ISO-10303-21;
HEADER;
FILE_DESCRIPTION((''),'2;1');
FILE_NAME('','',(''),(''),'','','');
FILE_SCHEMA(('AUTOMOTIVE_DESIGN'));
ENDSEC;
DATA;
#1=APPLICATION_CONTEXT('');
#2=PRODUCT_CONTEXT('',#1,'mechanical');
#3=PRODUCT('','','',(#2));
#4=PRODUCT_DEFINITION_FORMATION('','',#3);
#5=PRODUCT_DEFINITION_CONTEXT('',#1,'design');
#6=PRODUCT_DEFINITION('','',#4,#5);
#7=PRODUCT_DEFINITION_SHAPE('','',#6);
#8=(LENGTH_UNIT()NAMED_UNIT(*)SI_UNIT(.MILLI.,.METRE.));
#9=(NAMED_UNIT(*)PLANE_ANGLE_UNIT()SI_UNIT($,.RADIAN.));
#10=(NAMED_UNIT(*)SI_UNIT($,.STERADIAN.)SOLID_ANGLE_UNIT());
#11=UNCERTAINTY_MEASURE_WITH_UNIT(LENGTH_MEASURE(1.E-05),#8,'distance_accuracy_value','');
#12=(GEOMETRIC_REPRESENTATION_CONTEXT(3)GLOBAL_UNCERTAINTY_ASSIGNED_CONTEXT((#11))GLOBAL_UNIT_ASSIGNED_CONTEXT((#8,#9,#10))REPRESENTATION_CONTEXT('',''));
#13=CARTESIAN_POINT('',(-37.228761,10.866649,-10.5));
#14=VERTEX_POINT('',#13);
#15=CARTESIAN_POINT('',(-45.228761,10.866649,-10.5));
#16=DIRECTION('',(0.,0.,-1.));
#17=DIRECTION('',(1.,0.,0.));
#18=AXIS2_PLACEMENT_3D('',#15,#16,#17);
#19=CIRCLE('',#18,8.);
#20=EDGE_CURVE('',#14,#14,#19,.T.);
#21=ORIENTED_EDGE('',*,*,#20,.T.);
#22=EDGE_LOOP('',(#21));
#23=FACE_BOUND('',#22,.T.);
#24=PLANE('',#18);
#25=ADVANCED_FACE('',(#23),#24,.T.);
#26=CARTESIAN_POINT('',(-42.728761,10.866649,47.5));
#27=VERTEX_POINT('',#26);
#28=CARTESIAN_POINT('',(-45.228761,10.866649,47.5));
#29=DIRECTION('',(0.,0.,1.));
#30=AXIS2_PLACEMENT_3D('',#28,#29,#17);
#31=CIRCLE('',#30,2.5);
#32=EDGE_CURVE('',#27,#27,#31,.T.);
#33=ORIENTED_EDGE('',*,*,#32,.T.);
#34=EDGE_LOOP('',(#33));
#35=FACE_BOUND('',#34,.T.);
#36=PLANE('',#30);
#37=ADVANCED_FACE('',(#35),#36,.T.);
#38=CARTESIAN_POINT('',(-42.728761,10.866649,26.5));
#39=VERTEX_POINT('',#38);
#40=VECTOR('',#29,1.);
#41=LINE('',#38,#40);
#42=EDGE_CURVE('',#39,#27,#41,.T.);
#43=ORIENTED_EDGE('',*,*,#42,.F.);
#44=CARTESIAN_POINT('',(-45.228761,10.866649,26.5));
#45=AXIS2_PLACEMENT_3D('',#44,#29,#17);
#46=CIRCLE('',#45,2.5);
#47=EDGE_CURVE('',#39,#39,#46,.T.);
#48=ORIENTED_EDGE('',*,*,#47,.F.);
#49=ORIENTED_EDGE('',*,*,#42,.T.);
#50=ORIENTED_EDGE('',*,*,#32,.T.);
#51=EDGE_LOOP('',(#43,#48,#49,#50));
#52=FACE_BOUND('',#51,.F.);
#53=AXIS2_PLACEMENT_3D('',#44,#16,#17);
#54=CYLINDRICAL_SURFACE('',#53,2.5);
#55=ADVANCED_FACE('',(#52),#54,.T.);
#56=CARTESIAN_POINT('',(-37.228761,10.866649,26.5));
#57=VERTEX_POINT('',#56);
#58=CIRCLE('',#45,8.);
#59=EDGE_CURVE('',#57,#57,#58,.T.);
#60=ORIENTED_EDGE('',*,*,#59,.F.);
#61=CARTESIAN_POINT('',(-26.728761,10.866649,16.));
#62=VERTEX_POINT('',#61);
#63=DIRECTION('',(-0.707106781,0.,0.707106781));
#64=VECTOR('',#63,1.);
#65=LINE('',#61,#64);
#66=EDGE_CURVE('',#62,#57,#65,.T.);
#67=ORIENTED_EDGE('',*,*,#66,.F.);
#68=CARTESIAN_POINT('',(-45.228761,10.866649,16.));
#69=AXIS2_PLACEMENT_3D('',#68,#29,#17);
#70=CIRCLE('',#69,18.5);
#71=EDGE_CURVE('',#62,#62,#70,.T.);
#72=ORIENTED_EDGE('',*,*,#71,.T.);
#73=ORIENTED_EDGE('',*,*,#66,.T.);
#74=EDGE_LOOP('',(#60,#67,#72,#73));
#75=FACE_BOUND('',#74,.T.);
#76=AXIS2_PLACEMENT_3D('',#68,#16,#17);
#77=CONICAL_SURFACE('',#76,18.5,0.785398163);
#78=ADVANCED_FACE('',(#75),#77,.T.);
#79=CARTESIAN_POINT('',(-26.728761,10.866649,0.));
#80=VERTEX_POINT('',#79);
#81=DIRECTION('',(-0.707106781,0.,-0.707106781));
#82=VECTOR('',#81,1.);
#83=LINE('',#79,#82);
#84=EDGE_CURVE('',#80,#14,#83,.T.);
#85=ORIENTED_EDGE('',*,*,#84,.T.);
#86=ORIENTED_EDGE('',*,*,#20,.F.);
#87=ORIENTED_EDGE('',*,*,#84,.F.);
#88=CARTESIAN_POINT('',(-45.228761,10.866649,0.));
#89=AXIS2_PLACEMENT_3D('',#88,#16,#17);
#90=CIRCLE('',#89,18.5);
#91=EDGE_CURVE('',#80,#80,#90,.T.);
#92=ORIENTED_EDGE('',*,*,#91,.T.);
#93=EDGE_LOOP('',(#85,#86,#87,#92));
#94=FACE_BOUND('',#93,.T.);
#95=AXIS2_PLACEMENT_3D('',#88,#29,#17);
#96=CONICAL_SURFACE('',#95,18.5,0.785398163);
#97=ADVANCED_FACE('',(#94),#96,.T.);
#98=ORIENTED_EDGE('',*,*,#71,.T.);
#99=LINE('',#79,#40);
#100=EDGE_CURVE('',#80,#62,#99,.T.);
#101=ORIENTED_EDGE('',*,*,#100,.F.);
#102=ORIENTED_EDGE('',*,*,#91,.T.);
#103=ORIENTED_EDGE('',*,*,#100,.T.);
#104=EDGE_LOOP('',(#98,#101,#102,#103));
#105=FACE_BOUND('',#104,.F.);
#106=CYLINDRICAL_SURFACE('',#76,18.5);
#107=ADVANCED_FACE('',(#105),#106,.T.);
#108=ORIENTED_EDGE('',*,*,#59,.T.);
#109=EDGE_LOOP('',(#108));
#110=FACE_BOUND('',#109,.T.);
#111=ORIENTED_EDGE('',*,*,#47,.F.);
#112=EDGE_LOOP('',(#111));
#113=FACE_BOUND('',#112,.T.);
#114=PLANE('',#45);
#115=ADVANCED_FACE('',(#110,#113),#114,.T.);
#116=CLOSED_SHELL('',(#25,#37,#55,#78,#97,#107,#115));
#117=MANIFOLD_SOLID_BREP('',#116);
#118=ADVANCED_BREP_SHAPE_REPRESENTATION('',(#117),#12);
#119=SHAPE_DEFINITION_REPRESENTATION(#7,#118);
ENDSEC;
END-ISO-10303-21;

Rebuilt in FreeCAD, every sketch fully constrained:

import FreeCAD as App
import Part
import Sketcher
from FreeCAD import Vector


def edges_at(feature, points):
    """Names of the edges that pass closest to the given points."""
    edges = feature.Shape.Edges
    near = lambda p: min(range(len(edges)), key=lambda i: edges[i].distToShape(Part.Vertex(*p))[0])
    return sorted({f"Edge{near(p) + 1}" for p in points})

doc = App.newDocument("Part")
body = doc.addObject("PartDesign::Body", "Body")

# Sketch on XY plane
sketch1 = body.newObject("Sketcher::SketchObject", "Sketch")
sketch1.AttachmentSupport = (doc.getObject("XY_Plane"), [""])
sketch1.MapMode = "FlatFace"
sketch1.addGeometry(Part.Circle(Vector(-45, 11, 0), Vector(0, 0, 1), 18), False)
sketch1.addConstraint(Sketcher.Constraint("Diameter", 0, 37.0))
sketch1.addConstraint(Sketcher.Constraint("DistanceX", 0, 3, -1, 1, 45.228761))
sketch1.addConstraint(Sketcher.Constraint("DistanceY", -1, 1, 0, 3, 10.866649))
pad1 = body.newObject("PartDesign::Pad", "Pad")
pad1.Profile = sketch1
pad1.Length = 16

# Sketch on XY plane
sketch2 = body.newObject("Sketcher::SketchObject", "Sketch001")
sketch2.AttachmentSupport = (doc.getObject("XY_Plane"), [""])
sketch2.MapMode = "FlatFace"
sketch2.addGeometry(Part.Circle(Vector(-45, 11, 0), Vector(0, 0, 1), 18), False)
sketch2.addConstraint(Sketcher.Constraint("Diameter", 0, 37.0))
sketch2.addConstraint(Sketcher.Constraint("DistanceX", 0, 3, -1, 1, 45.228761))
sketch2.addConstraint(Sketcher.Constraint("DistanceY", -1, 1, 0, 3, 10.866649))
pad2 = body.newObject("PartDesign::Pad", "Pad001")
pad2.Profile = sketch2
pad2.Length = 10.5
pad2.Reversed = True
doc.recompute()

chamfer = body.newObject("PartDesign::Chamfer", "Chamfer")
chamfer.Base = (pad2, edges_at(pad2, [(-63.729, 10.867, -10.5)]))
chamfer.ChamferType = "Two distances"
chamfer.Size = 10.5
chamfer.Size2 = 10.5

# Sketch on XY plane
sketch3 = body.newObject("Sketcher::SketchObject", "Sketch002")
sketch3.AttachmentSupport = (doc.getObject("XY_Plane"), [""])
sketch3.MapMode = "FlatFace"
sketch3.AttachmentOffset = App.Placement(Vector(0, 0, 16), App.Rotation())
sketch3.addGeometry(Part.Circle(Vector(-45, 11, 0), Vector(0, 0, 1), 18), False)
sketch3.addConstraint(Sketcher.Constraint("Diameter", 0, 37.0))
sketch3.addConstraint(Sketcher.Constraint("DistanceX", 0, 3, -1, 1, 45.228761))
sketch3.addConstraint(Sketcher.Constraint("DistanceY", -1, 1, 0, 3, 10.866649))
pad3 = body.newObject("PartDesign::Pad", "Pad002")
pad3.Profile = sketch3
pad3.Length = 10.5
doc.recompute()

chamfer2 = body.newObject("PartDesign::Chamfer", "Chamfer001")
chamfer2.Base = (pad3, edges_at(pad3, [(-63.729, 10.867, 26.5)]))
chamfer2.ChamferType = "Two distances"
chamfer2.Size = 10.5
chamfer2.Size2 = 10.5

# Sketch on XY plane
sketch4 = body.newObject("Sketcher::SketchObject", "Sketch003")
sketch4.AttachmentSupport = (doc.getObject("XY_Plane"), [""])
sketch4.MapMode = "FlatFace"
sketch4.AttachmentOffset = App.Placement(Vector(0, 0, 26.5), App.Rotation())
sketch4.addGeometry(Part.Circle(Vector(-45.2, 10.9, 0), Vector(0, 0, 1), 2.5), False)
sketch4.addConstraint(Sketcher.Constraint("Diameter", 0, 5.0))
sketch4.addConstraint(Sketcher.Constraint("DistanceX", 0, 3, -1, 1, 45.228761))
sketch4.addConstraint(Sketcher.Constraint("DistanceY", -1, 1, 0, 3, 10.866649))
pad4 = body.newObject("PartDesign::Pad", "Pad003")
pad4.Profile = sketch4
pad4.Length = 21

doc.recompute()
